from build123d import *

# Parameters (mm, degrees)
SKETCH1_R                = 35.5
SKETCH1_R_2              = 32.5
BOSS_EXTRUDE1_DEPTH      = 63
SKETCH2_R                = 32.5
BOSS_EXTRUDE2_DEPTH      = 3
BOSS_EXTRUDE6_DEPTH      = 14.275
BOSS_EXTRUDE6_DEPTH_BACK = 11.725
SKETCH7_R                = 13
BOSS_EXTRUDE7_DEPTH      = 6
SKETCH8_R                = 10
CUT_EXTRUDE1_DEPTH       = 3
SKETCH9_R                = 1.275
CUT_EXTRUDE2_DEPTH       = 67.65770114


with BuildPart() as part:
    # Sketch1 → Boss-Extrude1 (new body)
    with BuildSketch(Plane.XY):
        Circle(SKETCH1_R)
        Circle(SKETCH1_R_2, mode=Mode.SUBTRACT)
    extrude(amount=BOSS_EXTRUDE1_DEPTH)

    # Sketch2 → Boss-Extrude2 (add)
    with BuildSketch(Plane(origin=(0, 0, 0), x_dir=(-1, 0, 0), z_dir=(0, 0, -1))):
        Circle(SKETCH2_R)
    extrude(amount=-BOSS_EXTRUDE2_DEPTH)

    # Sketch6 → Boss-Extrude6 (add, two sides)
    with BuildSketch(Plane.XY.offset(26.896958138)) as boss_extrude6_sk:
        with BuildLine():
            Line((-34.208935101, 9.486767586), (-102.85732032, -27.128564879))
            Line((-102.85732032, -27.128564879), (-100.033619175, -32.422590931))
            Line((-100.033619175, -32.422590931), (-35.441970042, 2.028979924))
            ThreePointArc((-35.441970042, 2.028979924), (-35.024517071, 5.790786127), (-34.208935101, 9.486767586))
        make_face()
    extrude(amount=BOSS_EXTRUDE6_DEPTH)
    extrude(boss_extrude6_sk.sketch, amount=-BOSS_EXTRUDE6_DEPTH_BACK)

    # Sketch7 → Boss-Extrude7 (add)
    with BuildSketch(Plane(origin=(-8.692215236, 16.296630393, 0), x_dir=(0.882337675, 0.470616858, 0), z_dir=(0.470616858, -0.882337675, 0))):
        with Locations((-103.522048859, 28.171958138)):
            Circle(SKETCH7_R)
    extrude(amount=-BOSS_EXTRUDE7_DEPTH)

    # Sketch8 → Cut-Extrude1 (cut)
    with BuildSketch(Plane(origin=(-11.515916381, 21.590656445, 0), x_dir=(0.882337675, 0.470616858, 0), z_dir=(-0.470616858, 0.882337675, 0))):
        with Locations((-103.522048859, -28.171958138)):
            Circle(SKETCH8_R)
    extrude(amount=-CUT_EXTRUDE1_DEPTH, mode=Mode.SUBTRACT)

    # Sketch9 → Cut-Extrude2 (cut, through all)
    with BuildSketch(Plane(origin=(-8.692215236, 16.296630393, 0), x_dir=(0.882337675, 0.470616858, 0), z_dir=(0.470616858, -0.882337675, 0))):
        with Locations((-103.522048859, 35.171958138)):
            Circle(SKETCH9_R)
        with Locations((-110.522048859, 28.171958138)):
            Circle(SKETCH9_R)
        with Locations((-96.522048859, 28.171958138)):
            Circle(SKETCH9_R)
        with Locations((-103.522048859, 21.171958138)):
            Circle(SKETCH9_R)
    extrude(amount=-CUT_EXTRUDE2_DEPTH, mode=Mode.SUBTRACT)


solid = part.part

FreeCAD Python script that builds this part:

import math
import FreeCAD as App
import Part
import Sketcher
Q = App.Units.Quantity

doc = App.newDocument("Part")
body = doc.addObject("PartDesign::Body", "Body")

# Sketch on XY plane
sketch1 = body.newObject("Sketcher::SketchObject", "Sketch")
sketch1.AttachmentSupport = (doc.getObject("XY_Plane"), [""])
sketch1.MapMode = "FlatFace"
sketch1.addGeometry([
    Part.Circle(App.Vector(0, 0, 0), App.Vector(0, 0, 1), 36),
    Part.Circle(App.Vector(0, 0, 0), App.Vector(0, 0, 1), 32),
], False)
sketch1.addConstraint([
    Sketcher.Constraint("Coincident", 0, 3, -1, 1),
    Sketcher.Constraint("Coincident", 1, 3, -1, 1),
    Sketcher.Constraint("Diameter", 0, Q("71 mm")),
    Sketcher.Constraint("Diameter", 1, Q("65 mm")),
])
pad1 = body.newObject("PartDesign::Pad", "Pad")
pad1.Profile = sketch1
pad1.Length = 63

# Sketch on XY plane
sketch2 = body.newObject("Sketcher::SketchObject", "Sketch001")
sketch2.AttachmentSupport = (doc.getObject("XY_Plane"), [""])
sketch2.MapMode = "FlatFace"
sketch2.addGeometry(Part.Circle(App.Vector(0, 0, 0), App.Vector(0, 0, 1), 32), False)
sketch2.addConstraint([
    Sketcher.Constraint("Coincident", 0, 3, -1, 1),
    Sketcher.Constraint("Diameter", 0, Q("65 mm")),
])
pad2 = body.newObject("PartDesign::Pad", "Pad001")
pad2.Profile = sketch2
pad2.Length = 3

# Sketch on XY plane
sketch3 = body.newObject("Sketcher::SketchObject", "Sketch002")
sketch3.AttachmentSupport = (doc.getObject("XY_Plane"), [""])
sketch3.MapMode = "FlatFace"
sketch3.AttachmentOffset = App.Placement(App.Vector(0, 0, 26.896958), App.Rotation())
sketch3.addGeometry([
    Part.LineSegment(App.Vector(-34, 9, 0), App.Vector(-103, -27, 0)),
    Part.LineSegment(App.Vector(-103, -27, 0), App.Vector(-100, -32, 0)),
    Part.LineSegment(App.Vector(-100, -32, 0), App.Vector(-35, 2, 0)),
    Part.ArcOfCircle(Part.Circle(App.Vector(0, 0, 0), App.Vector(0, 0, 1), 35), math.radians(164.5), math.radians(176.72)),
], False)
sketch3.addConstraint([
    Sketcher.Constraint("Coincident", 0, 2, 1, 1),
    Sketcher.Constraint("Coincident", 1, 2, 2, 1),
    Sketcher.Constraint("Coincident", 2, 2, 3, 2),
    Sketcher.Constraint("Coincident", 3, 1, 0, 1),
    Sketcher.Constraint("Coincident", 3, 3, -1, 1),
    Sketcher.Constraint("Perpendicular", 0, 1),
    Sketcher.Constraint("Perpendicular", 1, 2),
    Sketcher.Constraint("Radius", 3, Q("35.5 mm")),
    Sketcher.Constraint("Distance", 1, Q("6 mm")),
    Sketcher.Constraint("DistanceX", 0, 2, 1, 2, Q("2.823701 mm")),
    Sketcher.Constraint("Distance", 0, Q("77.802849 mm")),
    Sketcher.Constraint("DistanceX", 0, 2, -1, 1, Q("102.85732 mm")),
])
pad3 = body.newObject("PartDesign::Pad", "Pad002")
pad3.Profile = sketch3
pad3.Type = "TwoLengths"
pad3.Length = 14.275
pad3.Length2 = 11.725

# Sketch on an angled plane
sketch4 = body.newObject("Sketcher::SketchObject", "Sketch003")
sketch4.Placement = App.Placement(App.Vector(-8.692215, 16.29663, 0), App.Rotation(App.Vector(0.882337675, 0.470616858, 0), App.Vector(0, 0, 1), App.Vector(0.470616858, -0.882337675, 0), "ZXY"))
sketch4.addGeometry(Part.Circle(App.Vector(-104, 28, 0), App.Vector(0, 0, 1), 13), False)
sketch4.addConstraint([
    Sketcher.Constraint("Diameter", 0, Q("26 mm")),
    Sketcher.Constraint("DistanceX", 0, 3, -1, 1, Q("103.522049 mm")),
    Sketcher.Constraint("DistanceY", -1, 1, 0, 3, Q("28.171958 mm")),
])
pad4 = body.newObject("PartDesign::Pad", "Pad003")
pad4.Profile = sketch4
pad4.Length = 6
pad4.Reversed = True

# Sketch on an angled plane
sketch5 = body.newObject("Sketcher::SketchObject", "Sketch004")
sketch5.Placement = App.Placement(App.Vector(-11.515916, 21.590656, 0), App.Rotation(App.Vector(0.882337675, 0.470616858, 0), App.Vector(0, 0, -1), App.Vector(-0.470616858, 0.882337675, 0), "ZXY"))
sketch5.addGeometry(Part.Circle(App.Vector(-104, -28, 0), App.Vector(0, 0, 1), 10), False)
sketch5.addConstraint([
    Sketcher.Constraint("Diameter", 0, Q("20 mm")),
    Sketcher.Constraint("DistanceX", 0, 3, -1, 1, Q("103.522049 mm")),
    Sketcher.Constraint("DistanceY", 0, 3, -1, 1, Q("28.171958 mm")),
])
pocket1 = body.newObject("PartDesign::Pocket", "Pocket")
pocket1.Profile = sketch5
pocket1.Length = 3

# Sketch on an angled plane
sketch6 = body.newObject("Sketcher::SketchObject", "Sketch005")
sketch6.Placement = App.Placement(App.Vector(-8.692215, 16.29663, 0), App.Rotation(App.Vector(0.882337675, 0.470616858, 0), App.Vector(0, 0, 1), App.Vector(0.470616858, -0.882337675, 0), "ZXY"))
sketch6.addGeometry([
    Part.Circle(App.Vector(-103.5, 35.2, 0), App.Vector(0, 0, 1), 1.3),
    Part.Circle(App.Vector(-110.5, 28.2, 0), App.Vector(0, 0, 1), 1.3),
    Part.Circle(App.Vector(-96.5, 28.2, 0), App.Vector(0, 0, 1), 1.3),
    Part.Circle(App.Vector(-103.5, 21.2, 0), App.Vector(0, 0, 1), 1.3),
], False)
sketch6.addConstraint([
    Sketcher.Constraint("Equal", 0, 1),
    Sketcher.Constraint("Equal", 1, 2),
    Sketcher.Constraint("Equal", 2, 3),
    Sketcher.Constraint("Horizontal", 1, 3, 2, 3),
    Sketcher.Constraint("Vertical", 0, 3, 3, 3),
    Sketcher.Constraint("Diameter", 0, Q("2.55 mm")),
    Sketcher.Constraint("DistanceX", 1, 3, 0, 3, Q("7 mm")),
    Sketcher.Constraint("DistanceY", 1, 3, 0, 3, Q("7 mm")),
    Sketcher.Constraint("DistanceX", 0, 3, 2, 3, Q("7 mm")),
    Sketcher.Constraint("DistanceY", 3, 3, 1, 3, Q("7 mm")),
    Sketcher.Constraint("DistanceX", 0, 3, -1, 1, Q("103.522049 mm")),
    Sketcher.Constraint("DistanceY", -1, 1, 0, 3, Q("35.171958 mm")),
])
pocket2 = body.newObject("PartDesign::Pocket", "Pocket001")
pocket2.Profile = sketch6
pocket2.Type = "ThroughAll"

doc.recompute()
